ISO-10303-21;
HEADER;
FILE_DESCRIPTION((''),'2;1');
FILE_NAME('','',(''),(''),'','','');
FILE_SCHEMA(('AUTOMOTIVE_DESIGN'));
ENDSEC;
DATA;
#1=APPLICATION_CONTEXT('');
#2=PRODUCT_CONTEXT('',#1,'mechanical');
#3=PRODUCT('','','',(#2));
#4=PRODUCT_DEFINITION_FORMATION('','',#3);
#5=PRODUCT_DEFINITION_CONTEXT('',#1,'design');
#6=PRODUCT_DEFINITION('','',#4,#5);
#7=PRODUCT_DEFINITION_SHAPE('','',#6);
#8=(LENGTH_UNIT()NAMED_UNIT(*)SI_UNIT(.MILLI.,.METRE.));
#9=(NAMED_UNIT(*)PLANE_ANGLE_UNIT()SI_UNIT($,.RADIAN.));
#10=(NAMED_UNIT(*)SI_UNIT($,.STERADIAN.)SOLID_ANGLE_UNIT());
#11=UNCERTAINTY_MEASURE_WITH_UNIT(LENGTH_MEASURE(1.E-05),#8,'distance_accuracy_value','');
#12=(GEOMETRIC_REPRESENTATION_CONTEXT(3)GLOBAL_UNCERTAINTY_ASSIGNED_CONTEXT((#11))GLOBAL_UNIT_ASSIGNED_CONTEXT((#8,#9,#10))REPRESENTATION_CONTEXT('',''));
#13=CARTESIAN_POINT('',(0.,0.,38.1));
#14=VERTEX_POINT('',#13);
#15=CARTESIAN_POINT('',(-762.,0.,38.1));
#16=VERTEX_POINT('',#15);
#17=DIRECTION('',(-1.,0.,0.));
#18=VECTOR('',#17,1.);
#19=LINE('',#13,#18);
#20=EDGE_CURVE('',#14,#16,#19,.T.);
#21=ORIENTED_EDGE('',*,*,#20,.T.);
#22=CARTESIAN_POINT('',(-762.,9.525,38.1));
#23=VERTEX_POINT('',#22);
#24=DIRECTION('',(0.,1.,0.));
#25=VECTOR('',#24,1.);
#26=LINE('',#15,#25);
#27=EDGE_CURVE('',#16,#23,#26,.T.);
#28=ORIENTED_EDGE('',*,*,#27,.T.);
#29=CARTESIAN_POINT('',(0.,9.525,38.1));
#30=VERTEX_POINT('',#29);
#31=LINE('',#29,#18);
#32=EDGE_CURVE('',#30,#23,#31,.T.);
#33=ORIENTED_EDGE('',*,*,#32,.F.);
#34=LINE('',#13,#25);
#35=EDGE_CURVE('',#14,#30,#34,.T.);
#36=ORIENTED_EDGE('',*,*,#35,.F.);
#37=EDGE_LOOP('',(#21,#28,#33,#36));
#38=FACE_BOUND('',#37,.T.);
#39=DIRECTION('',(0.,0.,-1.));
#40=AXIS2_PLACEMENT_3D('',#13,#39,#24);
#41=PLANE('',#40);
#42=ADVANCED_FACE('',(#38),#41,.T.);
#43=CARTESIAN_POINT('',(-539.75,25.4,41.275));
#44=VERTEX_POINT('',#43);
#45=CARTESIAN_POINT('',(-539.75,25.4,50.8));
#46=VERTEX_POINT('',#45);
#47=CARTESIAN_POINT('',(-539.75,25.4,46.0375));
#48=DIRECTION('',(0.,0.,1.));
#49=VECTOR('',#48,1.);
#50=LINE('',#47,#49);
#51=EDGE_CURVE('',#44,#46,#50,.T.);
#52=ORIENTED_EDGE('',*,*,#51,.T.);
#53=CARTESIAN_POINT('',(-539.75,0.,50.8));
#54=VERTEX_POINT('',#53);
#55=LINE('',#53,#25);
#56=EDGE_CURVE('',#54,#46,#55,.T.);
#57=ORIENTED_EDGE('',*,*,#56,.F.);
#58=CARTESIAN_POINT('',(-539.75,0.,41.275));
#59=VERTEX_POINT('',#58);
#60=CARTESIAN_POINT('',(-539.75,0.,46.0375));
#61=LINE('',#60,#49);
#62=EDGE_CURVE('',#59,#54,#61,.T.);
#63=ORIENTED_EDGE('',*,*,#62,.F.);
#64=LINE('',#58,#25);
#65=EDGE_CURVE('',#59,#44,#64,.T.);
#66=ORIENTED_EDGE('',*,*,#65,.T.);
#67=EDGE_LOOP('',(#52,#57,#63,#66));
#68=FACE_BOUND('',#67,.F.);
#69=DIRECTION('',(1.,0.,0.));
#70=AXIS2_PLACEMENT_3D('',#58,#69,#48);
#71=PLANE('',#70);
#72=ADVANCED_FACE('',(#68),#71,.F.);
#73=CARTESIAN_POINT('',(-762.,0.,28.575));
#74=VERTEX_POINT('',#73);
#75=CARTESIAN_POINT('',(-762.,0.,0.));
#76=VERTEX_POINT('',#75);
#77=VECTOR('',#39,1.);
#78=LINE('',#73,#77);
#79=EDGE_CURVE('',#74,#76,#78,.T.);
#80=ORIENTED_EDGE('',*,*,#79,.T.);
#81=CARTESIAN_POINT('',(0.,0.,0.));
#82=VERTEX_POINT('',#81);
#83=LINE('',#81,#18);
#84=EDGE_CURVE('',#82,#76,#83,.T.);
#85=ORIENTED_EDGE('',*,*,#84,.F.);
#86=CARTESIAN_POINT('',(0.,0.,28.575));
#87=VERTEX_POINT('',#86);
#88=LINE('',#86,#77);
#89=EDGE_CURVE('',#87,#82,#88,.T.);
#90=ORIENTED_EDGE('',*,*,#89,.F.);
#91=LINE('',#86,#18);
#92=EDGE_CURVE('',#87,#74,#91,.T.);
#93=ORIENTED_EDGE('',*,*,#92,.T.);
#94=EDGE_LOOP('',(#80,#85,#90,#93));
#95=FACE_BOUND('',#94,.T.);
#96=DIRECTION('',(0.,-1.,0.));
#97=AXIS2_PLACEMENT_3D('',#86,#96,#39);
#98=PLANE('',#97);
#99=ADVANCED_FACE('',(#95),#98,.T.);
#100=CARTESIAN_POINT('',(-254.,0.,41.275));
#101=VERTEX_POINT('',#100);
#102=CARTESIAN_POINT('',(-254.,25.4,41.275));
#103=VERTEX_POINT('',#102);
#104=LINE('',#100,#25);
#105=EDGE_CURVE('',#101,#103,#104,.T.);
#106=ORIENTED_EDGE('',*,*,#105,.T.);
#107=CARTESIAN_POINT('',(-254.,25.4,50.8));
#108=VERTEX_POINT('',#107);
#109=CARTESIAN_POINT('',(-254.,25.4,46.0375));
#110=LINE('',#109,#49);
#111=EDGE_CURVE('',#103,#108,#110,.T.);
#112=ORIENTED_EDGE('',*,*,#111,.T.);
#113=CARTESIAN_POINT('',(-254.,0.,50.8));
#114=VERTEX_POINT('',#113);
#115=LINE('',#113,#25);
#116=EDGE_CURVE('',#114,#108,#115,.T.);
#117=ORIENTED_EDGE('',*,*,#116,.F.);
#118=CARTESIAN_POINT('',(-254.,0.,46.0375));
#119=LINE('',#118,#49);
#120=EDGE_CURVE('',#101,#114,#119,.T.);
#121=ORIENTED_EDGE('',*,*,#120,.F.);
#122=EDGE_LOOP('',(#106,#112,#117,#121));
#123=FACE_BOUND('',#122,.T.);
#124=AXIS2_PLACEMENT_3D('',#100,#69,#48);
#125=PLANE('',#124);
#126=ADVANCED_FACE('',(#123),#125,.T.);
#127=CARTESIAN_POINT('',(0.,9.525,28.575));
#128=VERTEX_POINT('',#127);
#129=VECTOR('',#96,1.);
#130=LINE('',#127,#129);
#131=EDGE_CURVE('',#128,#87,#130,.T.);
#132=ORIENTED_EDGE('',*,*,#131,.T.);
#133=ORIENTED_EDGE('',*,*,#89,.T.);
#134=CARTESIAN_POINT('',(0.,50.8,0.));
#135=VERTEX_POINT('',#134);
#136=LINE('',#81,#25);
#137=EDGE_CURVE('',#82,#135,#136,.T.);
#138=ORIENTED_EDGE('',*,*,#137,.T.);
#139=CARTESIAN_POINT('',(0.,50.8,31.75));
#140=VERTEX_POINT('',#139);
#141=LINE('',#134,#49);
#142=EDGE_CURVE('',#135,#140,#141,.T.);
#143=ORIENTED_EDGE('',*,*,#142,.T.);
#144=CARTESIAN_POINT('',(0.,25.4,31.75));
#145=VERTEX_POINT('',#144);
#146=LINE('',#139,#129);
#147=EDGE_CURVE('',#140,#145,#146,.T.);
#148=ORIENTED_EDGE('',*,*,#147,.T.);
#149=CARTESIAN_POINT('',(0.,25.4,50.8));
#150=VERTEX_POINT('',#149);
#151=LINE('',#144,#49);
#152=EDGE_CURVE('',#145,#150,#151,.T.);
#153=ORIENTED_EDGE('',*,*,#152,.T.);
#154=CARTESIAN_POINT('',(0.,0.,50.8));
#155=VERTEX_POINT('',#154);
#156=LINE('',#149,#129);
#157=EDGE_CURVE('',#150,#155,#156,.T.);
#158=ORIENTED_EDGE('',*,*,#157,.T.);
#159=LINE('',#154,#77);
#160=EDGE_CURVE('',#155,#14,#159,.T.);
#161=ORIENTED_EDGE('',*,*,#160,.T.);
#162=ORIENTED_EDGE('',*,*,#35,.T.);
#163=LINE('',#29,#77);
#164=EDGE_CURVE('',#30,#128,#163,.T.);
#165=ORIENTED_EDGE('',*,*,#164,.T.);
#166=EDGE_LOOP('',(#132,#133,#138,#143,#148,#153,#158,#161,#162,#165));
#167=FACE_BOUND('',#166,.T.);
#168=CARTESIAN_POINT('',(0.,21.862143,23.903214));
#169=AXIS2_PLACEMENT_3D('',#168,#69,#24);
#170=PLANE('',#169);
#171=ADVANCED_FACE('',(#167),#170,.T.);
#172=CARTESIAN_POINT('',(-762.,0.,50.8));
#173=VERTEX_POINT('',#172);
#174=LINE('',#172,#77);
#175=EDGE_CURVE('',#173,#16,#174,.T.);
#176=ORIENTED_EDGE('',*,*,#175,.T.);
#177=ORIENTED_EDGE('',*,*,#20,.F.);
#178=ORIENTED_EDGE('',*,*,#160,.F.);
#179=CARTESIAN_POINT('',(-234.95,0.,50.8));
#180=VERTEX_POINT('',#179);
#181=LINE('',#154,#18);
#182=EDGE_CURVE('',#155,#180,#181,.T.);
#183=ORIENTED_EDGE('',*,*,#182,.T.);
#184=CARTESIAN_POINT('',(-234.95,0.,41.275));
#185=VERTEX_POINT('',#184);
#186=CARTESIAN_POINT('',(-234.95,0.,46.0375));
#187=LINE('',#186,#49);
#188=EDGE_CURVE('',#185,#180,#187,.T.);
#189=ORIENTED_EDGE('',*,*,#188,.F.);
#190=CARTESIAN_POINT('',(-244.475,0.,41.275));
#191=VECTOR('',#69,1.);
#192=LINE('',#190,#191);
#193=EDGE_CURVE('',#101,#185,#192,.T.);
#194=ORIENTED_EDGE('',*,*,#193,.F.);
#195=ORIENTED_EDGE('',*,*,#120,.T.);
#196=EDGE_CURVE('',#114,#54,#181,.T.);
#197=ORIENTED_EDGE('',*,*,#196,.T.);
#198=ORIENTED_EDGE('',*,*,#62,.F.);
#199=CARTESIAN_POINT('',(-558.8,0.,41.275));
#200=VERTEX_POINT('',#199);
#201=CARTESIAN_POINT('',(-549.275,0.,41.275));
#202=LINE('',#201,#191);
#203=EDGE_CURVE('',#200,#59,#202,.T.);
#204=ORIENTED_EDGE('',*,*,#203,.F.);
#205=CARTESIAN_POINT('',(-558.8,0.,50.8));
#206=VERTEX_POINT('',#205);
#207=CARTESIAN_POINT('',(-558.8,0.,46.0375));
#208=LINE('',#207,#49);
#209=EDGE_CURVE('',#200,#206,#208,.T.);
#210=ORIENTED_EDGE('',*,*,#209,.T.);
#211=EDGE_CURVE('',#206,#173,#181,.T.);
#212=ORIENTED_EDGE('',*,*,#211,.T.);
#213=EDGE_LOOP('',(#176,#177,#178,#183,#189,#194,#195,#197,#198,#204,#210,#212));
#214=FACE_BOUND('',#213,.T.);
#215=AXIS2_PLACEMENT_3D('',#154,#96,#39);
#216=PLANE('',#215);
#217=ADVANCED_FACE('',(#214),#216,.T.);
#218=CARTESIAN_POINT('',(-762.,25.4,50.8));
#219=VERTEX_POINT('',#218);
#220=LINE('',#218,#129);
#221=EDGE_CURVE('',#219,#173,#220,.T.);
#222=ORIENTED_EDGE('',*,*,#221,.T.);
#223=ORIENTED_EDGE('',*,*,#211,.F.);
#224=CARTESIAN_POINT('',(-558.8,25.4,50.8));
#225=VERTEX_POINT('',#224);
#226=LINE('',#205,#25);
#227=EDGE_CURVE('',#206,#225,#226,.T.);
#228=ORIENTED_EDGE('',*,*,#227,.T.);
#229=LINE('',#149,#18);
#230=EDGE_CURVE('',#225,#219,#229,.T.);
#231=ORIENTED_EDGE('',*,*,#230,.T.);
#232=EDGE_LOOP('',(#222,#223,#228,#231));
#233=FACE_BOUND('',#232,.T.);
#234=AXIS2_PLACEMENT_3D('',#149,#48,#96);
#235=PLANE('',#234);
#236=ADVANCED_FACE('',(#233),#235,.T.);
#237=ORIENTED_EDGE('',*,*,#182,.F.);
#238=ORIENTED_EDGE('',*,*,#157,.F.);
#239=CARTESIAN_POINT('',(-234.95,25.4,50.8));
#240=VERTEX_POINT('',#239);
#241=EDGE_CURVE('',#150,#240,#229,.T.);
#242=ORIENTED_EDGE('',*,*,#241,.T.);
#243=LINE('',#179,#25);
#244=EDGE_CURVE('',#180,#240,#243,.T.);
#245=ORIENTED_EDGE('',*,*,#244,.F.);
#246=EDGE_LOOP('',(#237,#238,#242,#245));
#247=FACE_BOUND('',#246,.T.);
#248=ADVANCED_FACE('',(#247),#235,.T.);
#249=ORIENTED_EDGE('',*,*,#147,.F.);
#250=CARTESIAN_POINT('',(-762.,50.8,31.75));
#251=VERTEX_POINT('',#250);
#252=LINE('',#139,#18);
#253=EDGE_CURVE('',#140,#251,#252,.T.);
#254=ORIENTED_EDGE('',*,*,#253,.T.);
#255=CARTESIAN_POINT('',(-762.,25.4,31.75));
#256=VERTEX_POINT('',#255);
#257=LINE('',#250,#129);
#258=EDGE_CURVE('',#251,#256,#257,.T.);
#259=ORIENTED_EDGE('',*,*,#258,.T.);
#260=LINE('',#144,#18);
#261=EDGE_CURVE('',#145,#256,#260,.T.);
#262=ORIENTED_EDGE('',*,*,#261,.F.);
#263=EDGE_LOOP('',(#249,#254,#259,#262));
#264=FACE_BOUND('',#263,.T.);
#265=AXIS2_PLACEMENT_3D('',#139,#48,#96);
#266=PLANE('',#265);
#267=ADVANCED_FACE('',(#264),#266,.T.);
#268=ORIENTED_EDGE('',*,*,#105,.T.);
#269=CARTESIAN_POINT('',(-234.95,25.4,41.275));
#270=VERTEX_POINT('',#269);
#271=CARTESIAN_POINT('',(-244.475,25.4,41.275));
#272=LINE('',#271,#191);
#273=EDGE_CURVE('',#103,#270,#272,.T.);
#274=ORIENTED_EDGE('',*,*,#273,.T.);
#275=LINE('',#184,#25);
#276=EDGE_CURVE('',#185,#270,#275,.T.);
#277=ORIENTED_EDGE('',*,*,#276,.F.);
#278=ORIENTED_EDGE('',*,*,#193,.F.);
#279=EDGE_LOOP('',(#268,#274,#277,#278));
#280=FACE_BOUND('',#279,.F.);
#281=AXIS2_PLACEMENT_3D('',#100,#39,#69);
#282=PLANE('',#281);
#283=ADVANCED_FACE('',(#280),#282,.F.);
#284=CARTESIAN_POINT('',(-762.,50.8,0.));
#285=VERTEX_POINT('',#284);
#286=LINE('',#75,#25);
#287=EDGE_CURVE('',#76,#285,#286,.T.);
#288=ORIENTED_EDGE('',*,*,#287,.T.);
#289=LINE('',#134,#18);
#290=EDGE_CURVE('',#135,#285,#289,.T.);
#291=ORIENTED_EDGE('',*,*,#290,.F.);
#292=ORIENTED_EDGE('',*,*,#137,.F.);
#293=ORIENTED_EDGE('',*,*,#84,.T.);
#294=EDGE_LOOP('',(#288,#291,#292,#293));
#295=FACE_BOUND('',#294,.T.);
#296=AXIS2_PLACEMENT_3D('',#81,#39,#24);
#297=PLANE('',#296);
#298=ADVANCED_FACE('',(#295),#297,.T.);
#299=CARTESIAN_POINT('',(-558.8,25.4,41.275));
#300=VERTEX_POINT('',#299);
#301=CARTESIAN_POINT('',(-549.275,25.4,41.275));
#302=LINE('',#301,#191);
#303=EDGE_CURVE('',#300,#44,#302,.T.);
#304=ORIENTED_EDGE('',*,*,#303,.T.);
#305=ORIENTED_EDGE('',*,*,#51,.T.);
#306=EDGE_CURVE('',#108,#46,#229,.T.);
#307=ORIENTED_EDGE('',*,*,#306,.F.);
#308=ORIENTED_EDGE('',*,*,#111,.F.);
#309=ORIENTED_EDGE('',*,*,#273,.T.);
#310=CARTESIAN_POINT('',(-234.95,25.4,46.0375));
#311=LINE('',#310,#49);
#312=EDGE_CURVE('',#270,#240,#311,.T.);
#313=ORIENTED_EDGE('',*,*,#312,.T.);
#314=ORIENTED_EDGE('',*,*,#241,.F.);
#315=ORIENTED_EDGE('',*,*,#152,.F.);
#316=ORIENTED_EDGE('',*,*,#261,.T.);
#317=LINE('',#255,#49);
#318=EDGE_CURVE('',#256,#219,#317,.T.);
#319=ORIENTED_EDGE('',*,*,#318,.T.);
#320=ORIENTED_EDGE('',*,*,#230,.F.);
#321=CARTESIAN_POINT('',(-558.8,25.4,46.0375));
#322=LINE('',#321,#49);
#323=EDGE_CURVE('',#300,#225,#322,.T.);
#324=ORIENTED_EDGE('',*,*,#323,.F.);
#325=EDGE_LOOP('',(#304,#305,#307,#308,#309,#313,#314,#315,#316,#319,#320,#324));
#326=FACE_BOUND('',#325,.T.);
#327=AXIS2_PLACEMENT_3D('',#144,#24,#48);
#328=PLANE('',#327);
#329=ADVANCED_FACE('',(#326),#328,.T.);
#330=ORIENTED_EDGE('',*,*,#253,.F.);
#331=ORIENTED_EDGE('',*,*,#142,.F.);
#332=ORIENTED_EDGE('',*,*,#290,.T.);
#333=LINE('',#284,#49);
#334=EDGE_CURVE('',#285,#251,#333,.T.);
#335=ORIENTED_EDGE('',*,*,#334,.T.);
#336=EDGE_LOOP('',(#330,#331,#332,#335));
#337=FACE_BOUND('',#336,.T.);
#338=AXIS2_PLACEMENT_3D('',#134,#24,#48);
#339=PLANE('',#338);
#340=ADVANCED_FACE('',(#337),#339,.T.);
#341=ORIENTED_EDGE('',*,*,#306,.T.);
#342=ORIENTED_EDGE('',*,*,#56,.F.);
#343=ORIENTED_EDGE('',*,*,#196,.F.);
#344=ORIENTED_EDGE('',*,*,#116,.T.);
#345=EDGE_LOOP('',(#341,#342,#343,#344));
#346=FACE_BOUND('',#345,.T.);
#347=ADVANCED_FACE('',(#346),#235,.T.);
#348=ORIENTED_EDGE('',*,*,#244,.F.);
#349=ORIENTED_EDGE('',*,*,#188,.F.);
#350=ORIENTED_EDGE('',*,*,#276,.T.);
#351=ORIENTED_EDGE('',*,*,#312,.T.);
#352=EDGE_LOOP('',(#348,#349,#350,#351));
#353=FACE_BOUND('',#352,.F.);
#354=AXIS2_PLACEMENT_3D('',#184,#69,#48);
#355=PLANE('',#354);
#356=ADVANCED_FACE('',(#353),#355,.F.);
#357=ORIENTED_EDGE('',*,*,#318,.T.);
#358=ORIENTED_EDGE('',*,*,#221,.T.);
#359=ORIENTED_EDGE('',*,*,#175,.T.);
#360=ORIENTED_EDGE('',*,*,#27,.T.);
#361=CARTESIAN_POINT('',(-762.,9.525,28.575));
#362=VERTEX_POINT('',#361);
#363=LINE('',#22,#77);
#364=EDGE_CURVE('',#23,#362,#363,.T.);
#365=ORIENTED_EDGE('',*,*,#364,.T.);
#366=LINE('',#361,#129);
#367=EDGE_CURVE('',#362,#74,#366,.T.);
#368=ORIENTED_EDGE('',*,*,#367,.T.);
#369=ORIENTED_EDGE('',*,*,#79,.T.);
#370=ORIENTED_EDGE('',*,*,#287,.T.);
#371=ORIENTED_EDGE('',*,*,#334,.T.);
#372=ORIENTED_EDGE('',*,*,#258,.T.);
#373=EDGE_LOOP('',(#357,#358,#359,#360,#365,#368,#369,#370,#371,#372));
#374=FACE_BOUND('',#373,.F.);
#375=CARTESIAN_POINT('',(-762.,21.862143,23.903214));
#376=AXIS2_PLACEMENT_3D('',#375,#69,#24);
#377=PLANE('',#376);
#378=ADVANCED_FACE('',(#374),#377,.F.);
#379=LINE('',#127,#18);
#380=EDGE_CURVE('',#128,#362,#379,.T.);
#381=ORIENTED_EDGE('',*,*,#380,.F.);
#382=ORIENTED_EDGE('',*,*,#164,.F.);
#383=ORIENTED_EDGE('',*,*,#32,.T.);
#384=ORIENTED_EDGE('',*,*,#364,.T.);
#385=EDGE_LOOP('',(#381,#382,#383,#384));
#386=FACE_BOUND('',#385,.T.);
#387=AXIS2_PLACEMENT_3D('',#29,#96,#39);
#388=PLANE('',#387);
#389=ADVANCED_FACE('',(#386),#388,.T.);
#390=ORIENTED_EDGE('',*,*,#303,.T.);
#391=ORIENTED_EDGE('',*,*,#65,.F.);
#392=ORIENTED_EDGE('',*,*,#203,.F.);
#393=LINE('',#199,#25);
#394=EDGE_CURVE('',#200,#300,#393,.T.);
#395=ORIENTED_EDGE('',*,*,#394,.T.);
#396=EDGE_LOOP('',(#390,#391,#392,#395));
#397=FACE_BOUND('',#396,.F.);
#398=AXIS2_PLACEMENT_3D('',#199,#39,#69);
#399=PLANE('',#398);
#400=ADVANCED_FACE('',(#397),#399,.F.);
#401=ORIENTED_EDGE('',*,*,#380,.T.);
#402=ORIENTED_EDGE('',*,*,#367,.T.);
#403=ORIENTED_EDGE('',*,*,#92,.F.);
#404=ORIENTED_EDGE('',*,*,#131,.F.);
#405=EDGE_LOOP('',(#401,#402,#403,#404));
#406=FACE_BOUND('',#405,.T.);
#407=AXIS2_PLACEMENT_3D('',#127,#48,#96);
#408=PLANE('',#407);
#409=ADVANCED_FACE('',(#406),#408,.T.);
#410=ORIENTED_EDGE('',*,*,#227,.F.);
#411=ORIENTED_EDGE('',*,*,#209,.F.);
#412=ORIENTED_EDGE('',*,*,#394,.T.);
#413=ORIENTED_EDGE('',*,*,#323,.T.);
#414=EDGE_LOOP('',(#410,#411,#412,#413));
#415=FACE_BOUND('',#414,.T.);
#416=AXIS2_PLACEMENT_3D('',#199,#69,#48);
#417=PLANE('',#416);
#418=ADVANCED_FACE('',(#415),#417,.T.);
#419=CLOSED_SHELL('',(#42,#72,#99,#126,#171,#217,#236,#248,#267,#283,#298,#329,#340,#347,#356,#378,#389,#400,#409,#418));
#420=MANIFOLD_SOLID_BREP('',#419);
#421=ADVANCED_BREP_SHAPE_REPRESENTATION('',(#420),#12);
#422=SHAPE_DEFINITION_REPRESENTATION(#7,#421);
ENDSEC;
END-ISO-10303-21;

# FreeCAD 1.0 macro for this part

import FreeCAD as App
import Part
import Sketcher
Q = App.Units.Quantity


def add_polygon(sketch, points):
    """Adds a closed chain of lines whose ends are joined by coincident constraints."""
    first, n = sketch.GeometryCount, len(points)
    for a, b in zip(points, points[1:] + points[:1]):
        sketch.addGeometry(Part.LineSegment(App.Vector(*a, 0), App.Vector(*b, 0)), False)
    for i in range(n):
        sketch.addConstraint(Sketcher.Constraint("Coincident", first + i, 2, first + (i + 1) % n, 1))

doc = App.newDocument("Part")
body = doc.addObject("PartDesign::Body", "Body")

# Sketch on YZ plane
sketch1 = body.newObject("Sketcher::SketchObject", "Sketch")
sketch1.AttachmentSupport = (doc.getObject("YZ_Plane"), [""])
sketch1.MapMode = "FlatFace"
add_polygon(sketch1, [(0, 29), (0, 0), (51, 0), (51, 32), (25, 32), (25, 51), (0, 51), (0, 38), (10, 38), (10, 29)])  # lines 0-9
sketch1.addConstraint(Sketcher.Constraint("Vertical", 0))
sketch1.addConstraint(Sketcher.Constraint("Horizontal", 1))
sketch1.addConstraint(Sketcher.Constraint("Vertical", 2))
sketch1.addConstraint(Sketcher.Constraint("Horizontal", 3))
sketch1.addConstraint(Sketcher.Constraint("Vertical", 4))
sketch1.addConstraint(Sketcher.Constraint("Horizontal", 5))
sketch1.addConstraint(Sketcher.Constraint("Vertical", 6))
sketch1.addConstraint(Sketcher.Constraint("Horizontal", 7))
sketch1.addConstraint(Sketcher.Constraint("Vertical", 8))
sketch1.addConstraint(Sketcher.Constraint("Horizontal", 9))
sketch1.addConstraint(Sketcher.Constraint("Coincident", 0, 2, -1, 1))
sketch1.addConstraint(Sketcher.Constraint("PointOnObject", 5, 2, -2))
sketch1.addConstraint(Sketcher.Constraint("Equal", 3, 5))
sketch1.addConstraint(Sketcher.Constraint("Equal", 9, 8))
sketch1.addConstraint(Sketcher.Constraint("DistanceX", 1, 1, 1, 2, Q("2 in")))
sketch1.addConstraint(Sketcher.Constraint("DistanceY", 6, 2, 6, 1, Q("0.5 in")))
sketch1.addConstraint(Sketcher.Constraint("DistanceY", -1, 1, 4, 2, Q("2 in")))
sketch1.addConstraint(Sketcher.Constraint("DistanceY", 2, 1, 2, 2, Q("1.25 in")))
sketch1.addConstraint(Sketcher.Constraint("DistanceX", 7, 1, 7, 2, Q("0.375 in")))
pad1 = body.newObject("PartDesign::Pad", "Pad")
pad1.Profile = sketch1
pad1.Length = Q("30 in")
pad1.Reversed = True

# Sketch on XZ plane
sketch2 = body.newObject("Sketcher::SketchObject", "Sketch001")
sketch2.AttachmentSupport = (doc.getObject("XZ_Plane"), [""])
sketch2.MapMode = "FlatFace"
add_polygon(sketch2, [(-559, 51), (-559, 41), (-540, 41), (-540, 51)])  # lines 0-3
add_polygon(sketch2, [(-254, 51), (-254, 41), (-235, 41), (-235, 51)])  # lines 4-7
sketch2.addConstraint(Sketcher.Constraint("Vertical", 0))
sketch2.addConstraint(Sketcher.Constraint("Horizontal", 1))
sketch2.addConstraint(Sketcher.Constraint("Vertical", 2))
sketch2.addConstraint(Sketcher.Constraint("Horizontal", 3))
sketch2.addConstraint(Sketcher.Constraint("Vertical", 4))
sketch2.addConstraint(Sketcher.Constraint("Horizontal", 5))
sketch2.addConstraint(Sketcher.Constraint("Vertical", 6))
sketch2.addConstraint(Sketcher.Constraint("Horizontal", 7))
sketch2.addConstraint(Sketcher.Constraint("Horizontal", 1, 2, 4, 2))
sketch2.addConstraint(Sketcher.Constraint("Horizontal", 3, 2, 6, 2))
sketch2.addConstraint(Sketcher.Constraint("Equal", 3, 5))
sketch2.addConstraint(Sketcher.Constraint("DistanceX", 0, 2, -1, 1, Q("22 in")))
sketch2.addConstraint(Sketcher.Constraint("DistanceY", -1, 1, 2, 2, Q("2 in")))
sketch2.addConstraint(Sketcher.Constraint("DistanceX", 4, 2, -1, 1, Q("10 in")))
sketch2.addConstraint(Sketcher.Constraint("DistanceX", 1, 1, 1, 2, Q("0.75 in")))
sketch2.addConstraint(Sketcher.Constraint("DistanceY", 0, 2, 0, 1, Q("0.375 in")))
pocket1 = body.newObject("PartDesign::Pocket", "Pocket")
pocket1.Profile = sketch2
pocket1.Length = Q("1 in")

doc.recompute()
